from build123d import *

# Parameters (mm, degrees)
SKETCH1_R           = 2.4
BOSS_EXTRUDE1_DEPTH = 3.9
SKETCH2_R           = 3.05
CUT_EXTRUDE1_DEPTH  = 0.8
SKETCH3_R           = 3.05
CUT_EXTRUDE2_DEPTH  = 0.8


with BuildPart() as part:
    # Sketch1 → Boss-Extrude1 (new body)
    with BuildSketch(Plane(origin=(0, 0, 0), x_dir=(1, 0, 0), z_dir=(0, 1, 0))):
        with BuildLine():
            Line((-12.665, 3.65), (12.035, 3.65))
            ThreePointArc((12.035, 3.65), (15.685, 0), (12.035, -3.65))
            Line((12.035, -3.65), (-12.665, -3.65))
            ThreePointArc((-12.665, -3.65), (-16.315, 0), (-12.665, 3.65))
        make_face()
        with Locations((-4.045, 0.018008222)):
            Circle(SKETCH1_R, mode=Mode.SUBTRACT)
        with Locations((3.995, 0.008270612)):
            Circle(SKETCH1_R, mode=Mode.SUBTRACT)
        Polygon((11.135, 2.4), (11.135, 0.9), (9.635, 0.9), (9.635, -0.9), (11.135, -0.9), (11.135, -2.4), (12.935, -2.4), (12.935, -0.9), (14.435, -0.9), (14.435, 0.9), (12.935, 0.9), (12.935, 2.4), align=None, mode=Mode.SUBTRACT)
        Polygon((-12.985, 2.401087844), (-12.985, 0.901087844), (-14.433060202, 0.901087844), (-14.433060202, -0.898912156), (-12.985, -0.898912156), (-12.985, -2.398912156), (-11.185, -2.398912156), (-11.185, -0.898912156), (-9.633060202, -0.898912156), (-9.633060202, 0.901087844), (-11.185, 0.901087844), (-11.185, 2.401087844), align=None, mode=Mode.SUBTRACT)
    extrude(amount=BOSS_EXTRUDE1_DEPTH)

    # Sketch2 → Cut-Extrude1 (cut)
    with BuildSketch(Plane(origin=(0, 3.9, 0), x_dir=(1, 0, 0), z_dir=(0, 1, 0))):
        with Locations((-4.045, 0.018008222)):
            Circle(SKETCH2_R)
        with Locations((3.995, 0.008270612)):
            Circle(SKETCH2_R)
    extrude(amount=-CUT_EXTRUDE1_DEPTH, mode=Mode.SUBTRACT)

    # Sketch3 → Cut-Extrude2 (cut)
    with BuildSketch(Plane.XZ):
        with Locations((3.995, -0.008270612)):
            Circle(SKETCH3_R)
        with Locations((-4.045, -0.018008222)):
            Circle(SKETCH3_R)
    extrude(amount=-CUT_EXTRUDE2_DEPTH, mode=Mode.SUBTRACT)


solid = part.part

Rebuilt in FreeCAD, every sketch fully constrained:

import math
import FreeCAD as App
import Part
import Sketcher
Q = App.Units.Quantity

doc = App.newDocument("Part")
body = doc.addObject("PartDesign::Body", "Body")

sketch1 = doc.addObject("Sketcher::SketchObject", "Sketch")
body.addObject(sketch1)
sketch1.AttachmentSupport = (doc.XZ_Plane, [""])
sketch1.MapMode = "FlatFace"
sketch1.addGeometry([
    Part.LineSegment(App.Vector(12, -3.6, 0), App.Vector(-12.7, -3.6, 0)),
    Part.ArcOfCircle(Part.Circle(App.Vector(-12.7, 0, 0), App.Vector(0, 0, 1), 3.6), math.radians(90), math.radians(270)),
    Part.LineSegment(App.Vector(-12.7, 3.6, 0), App.Vector(12, 3.6, 0)),
    Part.ArcOfCircle(Part.Circle(App.Vector(12, 0, 0), App.Vector(0, 0, 1), 3.6), math.radians(-90), math.radians(90)),
    Part.LineSegment(App.Vector(11.1, -2.4, 0), App.Vector(12.9, -2.4, 0)),
    Part.LineSegment(App.Vector(12.9, -2.4, 0), App.Vector(12.9, -0.9, 0)),
    Part.LineSegment(App.Vector(12.9, -0.9, 0), App.Vector(14.4, -0.9, 0)),
    Part.LineSegment(App.Vector(14.4, -0.9, 0), App.Vector(14.4, 0.9, 0)),
    Part.LineSegment(App.Vector(14.4, 0.9, 0), App.Vector(12.9, 0.9, 0)),
    Part.LineSegment(App.Vector(12.9, 0.9, 0), App.Vector(12.9, 2.4, 0)),
    Part.LineSegment(App.Vector(12.9, 2.4, 0), App.Vector(11.1, 2.4, 0)),
    Part.LineSegment(App.Vector(11.1, 2.4, 0), App.Vector(11.1, 0.9, 0)),
    Part.LineSegment(App.Vector(11.1, 0.9, 0), App.Vector(9.6, 0.9, 0)),
    Part.LineSegment(App.Vector(9.6, 0.9, 0), App.Vector(9.6, -0.9, 0)),
    Part.LineSegment(App.Vector(9.6, -0.9, 0), App.Vector(11.1, -0.9, 0)),
    Part.LineSegment(App.Vector(11.1, -0.9, 0), App.Vector(11.1, -2.4, 0)),
    Part.Circle(App.Vector(4, 0, 0), App.Vector(0, 0, 1), 2.4),
    Part.LineSegment(App.Vector(-13, -2.4, 0), App.Vector(-11.2, -2.4, 0)),
    Part.LineSegment(App.Vector(-11.2, -2.4, 0), App.Vector(-11.2, -0.9, 0)),
    Part.LineSegment(App.Vector(-11.2, -0.9, 0), App.Vector(-9.6, -0.9, 0)),
    Part.LineSegment(App.Vector(-9.6, -0.9, 0), App.Vector(-9.6, 0.9, 0)),
    Part.LineSegment(App.Vector(-9.6, 0.9, 0), App.Vector(-11.2, 0.9, 0)),
    Part.LineSegment(App.Vector(-11.2, 0.9, 0), App.Vector(-11.2, 2.4, 0)),
    Part.LineSegment(App.Vector(-11.2, 2.4, 0), App.Vector(-13, 2.4, 0)),
    Part.LineSegment(App.Vector(-13, 2.4, 0), App.Vector(-13, 0.9, 0)),
    Part.LineSegment(App.Vector(-13, 0.9, 0), App.Vector(-14.4, 0.9, 0)),
    Part.LineSegment(App.Vector(-14.4, 0.9, 0), App.Vector(-14.4, -0.9, 0)),
    Part.LineSegment(App.Vector(-14.4, -0.9, 0), App.Vector(-13, -0.9, 0)),
    Part.LineSegment(App.Vector(-13, -0.9, 0), App.Vector(-13, -2.4, 0)),
    Part.Circle(App.Vector(-4, 0, 0), App.Vector(0, 0, 1), 2.4),
], False)
sketch1.addConstraint([
    Sketcher.Constraint("Tangent", 0, 2, 1, 2),
    Sketcher.Constraint("Tangent", 1, 1, 2, 1),
    Sketcher.Constraint("Tangent", 2, 2, 3, 2),
    Sketcher.Constraint("Tangent", 3, 1, 0, 1),
    Sketcher.Constraint("Coincident", 4, 2, 5, 1),
    Sketcher.Constraint("Coincident", 5, 2, 6, 1),
    Sketcher.Constraint("Coincident", 6, 2, 7, 1),
    Sketcher.Constraint("Coincident", 7, 2, 8, 1),
    Sketcher.Constraint("Coincident", 8, 2, 9, 1),
    Sketcher.Constraint("Coincident", 9, 2, 10, 1),
    Sketcher.Constraint("Coincident", 10, 2, 11, 1),
    Sketcher.Constraint("Coincident", 11, 2, 12, 1),
    Sketcher.Constraint("Coincident", 12, 2, 13, 1),
    Sketcher.Constraint("Coincident", 13, 2, 14, 1),
    Sketcher.Constraint("Coincident", 14, 2, 15, 1),
    Sketcher.Constraint("Coincident", 15, 2, 4, 1),
    Sketcher.Constraint("Coincident", 17, 2, 18, 1),
    Sketcher.Constraint("Coincident", 18, 2, 19, 1),
    Sketcher.Constraint("Coincident", 19, 2, 20, 1),
    Sketcher.Constraint("Coincident", 20, 2, 21, 1),
    Sketcher.Constraint("Coincident", 21, 2, 22, 1),
    Sketcher.Constraint("Coincident", 22, 2, 23, 1),
    Sketcher.Constraint("Coincident", 23, 2, 24, 1),
    Sketcher.Constraint("Coincident", 24, 2, 25, 1),
    Sketcher.Constraint("Coincident", 25, 2, 26, 1),
    Sketcher.Constraint("Coincident", 26, 2, 27, 1),
    Sketcher.Constraint("Coincident", 27, 2, 28, 1),
    Sketcher.Constraint("Coincident", 28, 2, 17, 1),
    Sketcher.Constraint("Horizontal", 0),
    Sketcher.Constraint("Horizontal", 2),
    Sketcher.Constraint("Horizontal", 4),
    Sketcher.Constraint("Vertical", 5),
    Sketcher.Constraint("Horizontal", 6),
    Sketcher.Constraint("Vertical", 7),
    Sketcher.Constraint("Horizontal", 8),
    Sketcher.Constraint("Vertical", 9),
    Sketcher.Constraint("Horizontal", 10),
    Sketcher.Constraint("Vertical", 11),
    Sketcher.Constraint("Horizontal", 12),
    Sketcher.Constraint("Vertical", 13),
    Sketcher.Constraint("Horizontal", 14),
    Sketcher.Constraint("Vertical", 15),
    Sketcher.Constraint("Horizontal", 17),
    Sketcher.Constraint("Vertical", 18),
    Sketcher.Constraint("Horizontal", 19),
    Sketcher.Constraint("Vertical", 20),
    Sketcher.Constraint("Horizontal", 21),
    Sketcher.Constraint("Vertical", 22),
    Sketcher.Constraint("Horizontal", 23),
    Sketcher.Constraint("Vertical", 24),
    Sketcher.Constraint("Horizontal", 25),
    Sketcher.Constraint("Vertical", 26),
    Sketcher.Constraint("Horizontal", 27),
    Sketcher.Constraint("Vertical", 28),
    Sketcher.Constraint("Equal", 16, 29),
    Sketcher.Constraint("Symmetric", 5, 2, 8, 2, -1),
    Sketcher.Constraint("Symmetric", 11, 2, 14, 2, -1),
    Sketcher.Constraint("PointOnObject", 1, 3, -1),
    Sketcher.Constraint("Horizontal", 8, 2, 11, 2),
    Sketcher.Constraint("Horizontal", 21, 2, 24, 2),
    Sketcher.Constraint("Horizontal", 19, 2, 26, 2),
    Sketcher.Constraint("Vertical", 18, 2, 21, 2),
    Sketcher.Constraint("Vertical", 24, 2, 27, 2),
    Sketcher.Constraint("Equal", 8, 12),
    Sketcher.Constraint("Equal", 10, 17),
    Sketcher.Constraint("Equal", 14, 5),
    Sketcher.Constraint("Equal", 23, 7),
    Sketcher.Constraint("Equal", 5, 9),
    Sketcher.Constraint("Equal", 15, 18),
    Sketcher.Constraint("Equal", 13, 20),
    Sketcher.Constraint("Equal", 18, 22),
    Sketcher.Constraint("Diameter", 16, Q("4.8 mm")),
    Sketcher.Constraint("Radius", 1, Q("3.65 mm")),
    Sketcher.Constraint("DistanceX", 0, 2, 0, 1, Q("24.7 mm")),
    Sketcher.Constraint("DistanceX", 4, 1, 4, 2, Q("1.8 mm")),
    Sketcher.Constraint("DistanceX", 6, 1, 6, 2, Q("1.5 mm")),
    Sketcher.Constraint("DistanceX", 3, 1, 4, 2, Q("0.9 mm")),
    Sketcher.Constraint("DistanceX", 16, 3, 3, 3, Q("8.04 mm")),
    Sketcher.Constraint("DistanceX", 29, 3, 16, 3, Q("8.04 mm")),
    Sketcher.Constraint("DistanceX", 0, 2, 17, 2, Q("1.48 mm")),
    Sketcher.Constraint("DistanceX", 1, 3, -1, 1, Q("12.665 mm")),
    Sketcher.Constraint("DistanceX", 19, 1, 19, 2, Q("1.55194 mm")),
    Sketcher.Constraint("DistanceX", 25, 2, 25, 1, Q("1.44806 mm")),
    Sketcher.Constraint("DistanceY", 16, 3, -1, 1, Q("0.008271 mm")),
    Sketcher.Constraint("DistanceY", 29, 3, -1, 1, Q("0.018008 mm")),
    Sketcher.Constraint("DistanceY", 17, 2, 29, 3, Q("2.38308 mm")),
])
pad1 = doc.addObject("PartDesign::Pad", "Pad")
body.addObject(pad1)
pad1.Profile = sketch1
pad1.Length = 3.9
pad1.Reversed = True

sketch2 = doc.addObject("Sketcher::SketchObject", "Sketch001")
body.addObject(sketch2)
sketch2.AttachmentSupport = (doc.XZ_Plane, [""])
sketch2.MapMode = "FlatFace"
sketch2.AttachmentOffset = App.Placement(App.Vector(0, 0, -3.9), App.Rotation())
sketch2.addGeometry([
    Part.Circle(App.Vector(-4, 0, 0), App.Vector(0, 0, 1), 3),
    Part.Circle(App.Vector(4, 0, 0), App.Vector(0, 0, 1), 3),
], False)
sketch2.addConstraint([
    Sketcher.Constraint("Equal", 0, 1),
    Sketcher.Constraint("Diameter", 0, Q("6.1 mm")),
    Sketcher.Constraint("DistanceX", 0, 3, 1, 3, Q("8.04 mm")),
    Sketcher.Constraint("DistanceX", 0, 3, -1, 1, Q("4.045 mm")),
    Sketcher.Constraint("DistanceY", 0, 3, -1, 1, Q("0.018008 mm")),
    Sketcher.Constraint("DistanceY", 1, 3, -1, 1, Q("0.008271 mm")),
])
pocket1 = doc.addObject("PartDesign::Pocket", "Pocket")
body.addObject(pocket1)
pocket1.Profile = sketch2
pocket1.Length = 0.8
pocket1.Reversed = True

sketch3 = doc.addObject("Sketcher::SketchObject", "Sketch002")
body.addObject(sketch3)
sketch3.AttachmentSupport = (doc.XZ_Plane, [""])
sketch3.MapMode = "FlatFace"
sketch3.addGeometry([
    Part.Circle(App.Vector(4, 0, 0), App.Vector(0, 0, 1), 3),
    Part.Circle(App.Vector(-4, 0, 0), App.Vector(0, 0, 1), 3),
], False)
sketch3.addConstraint([
    Sketcher.Constraint("Equal", 0, 1),
    Sketcher.Constraint("Diameter", 0, Q("6.1 mm")),
    Sketcher.Constraint("DistanceX", 1, 3, 0, 3, Q("8.04 mm")),
    Sketcher.Constraint("DistanceX", -1, 1, 0, 3, Q("3.995 mm")),
    Sketcher.Constraint("DistanceY", 0, 3, -1, 1, Q("0.008271 mm")),
    Sketcher.Constraint("DistanceY", 1, 3, -1, 1, Q("0.018008 mm")),
])
pocket2 = doc.addObject("PartDesign::Pocket", "Pocket001")
body.addObject(pocket2)
pocket2.Profile = sketch3
pocket2.Length = 0.8

doc.recompute()
